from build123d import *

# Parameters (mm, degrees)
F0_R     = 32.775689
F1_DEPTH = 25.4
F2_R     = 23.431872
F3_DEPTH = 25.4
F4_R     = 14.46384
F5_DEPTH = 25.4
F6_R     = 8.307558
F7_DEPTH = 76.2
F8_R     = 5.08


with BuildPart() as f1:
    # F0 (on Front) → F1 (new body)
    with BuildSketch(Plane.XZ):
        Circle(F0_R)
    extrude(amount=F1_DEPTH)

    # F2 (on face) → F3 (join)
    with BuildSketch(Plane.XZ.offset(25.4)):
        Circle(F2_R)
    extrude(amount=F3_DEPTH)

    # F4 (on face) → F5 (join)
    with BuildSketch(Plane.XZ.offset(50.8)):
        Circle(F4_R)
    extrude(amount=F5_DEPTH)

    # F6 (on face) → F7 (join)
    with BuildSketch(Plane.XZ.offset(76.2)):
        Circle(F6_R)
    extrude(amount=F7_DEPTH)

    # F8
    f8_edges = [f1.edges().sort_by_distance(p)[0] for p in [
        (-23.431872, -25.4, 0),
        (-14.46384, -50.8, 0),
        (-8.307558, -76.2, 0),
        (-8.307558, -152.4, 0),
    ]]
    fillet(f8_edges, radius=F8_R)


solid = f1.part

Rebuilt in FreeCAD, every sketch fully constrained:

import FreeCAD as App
import Part
import Sketcher

V = App.Vector
Q = App.Units.Quantity


def edges_at(feature, points):
    """Names of the edges that pass closest to the given points."""
    edges = feature.Shape.Edges
    near = lambda p: min(range(len(edges)), key=lambda i: edges[i].distToShape(Part.Vertex(*p))[0])
    return sorted({f"Edge{near(p) + 1}" for p in points})

doc = App.newDocument("Part")
body = doc.addObject("PartDesign::Body", "Body")

# Sketch on XZ plane
sketch1 = body.newObject("Sketcher::SketchObject", "Sketch")
sketch1.AttachmentSupport = (doc.getObject("XZ_Plane"), [""])
sketch1.MapMode = "FlatFace"
sketch1.addGeometry(Part.Circle(V(0, 0, 0), V(0, 0, 1), 33), False)
sketch1.addConstraint([
    Sketcher.Constraint("Coincident", 0, 3, -1, 1),
    Sketcher.Constraint("Diameter", 0, 65.551378),
])
pad1 = body.newObject("PartDesign::Pad", "Pad")
pad1.Profile = sketch1
pad1.Length = Q("1 in")

# Sketch on XZ plane
sketch2 = body.newObject("Sketcher::SketchObject", "Sketch001")
sketch2.AttachmentSupport = (doc.getObject("XZ_Plane"), [""])
sketch2.MapMode = "FlatFace"
sketch2.AttachmentOffset = App.Placement(V(0, 0, 1 * 25.4), App.Rotation())
sketch2.addGeometry(Part.Circle(V(0, 0, 0), V(0, 0, 1), 23), False)
sketch2.addConstraint([
    Sketcher.Constraint("Coincident", 0, 3, -1, 1),
    Sketcher.Constraint("Diameter", 0, 46.863744),
])
pad2 = body.newObject("PartDesign::Pad", "Pad001")
pad2.Profile = sketch2
pad2.Length = Q("1 in")

# Sketch on XZ plane
sketch3 = body.newObject("Sketcher::SketchObject", "Sketch002")
sketch3.AttachmentSupport = (doc.getObject("XZ_Plane"), [""])
sketch3.MapMode = "FlatFace"
sketch3.AttachmentOffset = App.Placement(V(0, 0, 2 * 25.4), App.Rotation())
sketch3.addGeometry(Part.Circle(V(0, 0, 0), V(0, 0, 1), 14), False)
sketch3.addConstraint([
    Sketcher.Constraint("Coincident", 0, 3, -1, 1),
    Sketcher.Constraint("Diameter", 0, 28.92768),
])
pad3 = body.newObject("PartDesign::Pad", "Pad002")
pad3.Profile = sketch3
pad3.Length = Q("1 in")

# Sketch on XZ plane
sketch4 = body.newObject("Sketcher::SketchObject", "Sketch003")
sketch4.AttachmentSupport = (doc.getObject("XZ_Plane"), [""])
sketch4.MapMode = "FlatFace"
sketch4.AttachmentOffset = App.Placement(V(0, 0, 3 * 25.4), App.Rotation())
sketch4.addGeometry(Part.Circle(V(0, 0, 0), V(0, 0, 1), 8), False)
sketch4.addConstraint([
    Sketcher.Constraint("Coincident", 0, 3, -1, 1),
    Sketcher.Constraint("Diameter", 0, 16.615116),
])
pad4 = body.newObject("PartDesign::Pad", "Pad003")
pad4.Profile = sketch4
pad4.Length = Q("3 in")
doc.recompute()

fillet = body.newObject("PartDesign::Fillet", "Fillet")
fillet.Base = (pad4, edges_at(pad4, [
    (-23.432, -25.4, 0),
    (-14.464, -50.8, 0),
    (-8.308, -76.2, 0),
    (-8.308, -152.4, 0),
]))
fillet.Radius = Q("0.2 in")

doc.recompute()
